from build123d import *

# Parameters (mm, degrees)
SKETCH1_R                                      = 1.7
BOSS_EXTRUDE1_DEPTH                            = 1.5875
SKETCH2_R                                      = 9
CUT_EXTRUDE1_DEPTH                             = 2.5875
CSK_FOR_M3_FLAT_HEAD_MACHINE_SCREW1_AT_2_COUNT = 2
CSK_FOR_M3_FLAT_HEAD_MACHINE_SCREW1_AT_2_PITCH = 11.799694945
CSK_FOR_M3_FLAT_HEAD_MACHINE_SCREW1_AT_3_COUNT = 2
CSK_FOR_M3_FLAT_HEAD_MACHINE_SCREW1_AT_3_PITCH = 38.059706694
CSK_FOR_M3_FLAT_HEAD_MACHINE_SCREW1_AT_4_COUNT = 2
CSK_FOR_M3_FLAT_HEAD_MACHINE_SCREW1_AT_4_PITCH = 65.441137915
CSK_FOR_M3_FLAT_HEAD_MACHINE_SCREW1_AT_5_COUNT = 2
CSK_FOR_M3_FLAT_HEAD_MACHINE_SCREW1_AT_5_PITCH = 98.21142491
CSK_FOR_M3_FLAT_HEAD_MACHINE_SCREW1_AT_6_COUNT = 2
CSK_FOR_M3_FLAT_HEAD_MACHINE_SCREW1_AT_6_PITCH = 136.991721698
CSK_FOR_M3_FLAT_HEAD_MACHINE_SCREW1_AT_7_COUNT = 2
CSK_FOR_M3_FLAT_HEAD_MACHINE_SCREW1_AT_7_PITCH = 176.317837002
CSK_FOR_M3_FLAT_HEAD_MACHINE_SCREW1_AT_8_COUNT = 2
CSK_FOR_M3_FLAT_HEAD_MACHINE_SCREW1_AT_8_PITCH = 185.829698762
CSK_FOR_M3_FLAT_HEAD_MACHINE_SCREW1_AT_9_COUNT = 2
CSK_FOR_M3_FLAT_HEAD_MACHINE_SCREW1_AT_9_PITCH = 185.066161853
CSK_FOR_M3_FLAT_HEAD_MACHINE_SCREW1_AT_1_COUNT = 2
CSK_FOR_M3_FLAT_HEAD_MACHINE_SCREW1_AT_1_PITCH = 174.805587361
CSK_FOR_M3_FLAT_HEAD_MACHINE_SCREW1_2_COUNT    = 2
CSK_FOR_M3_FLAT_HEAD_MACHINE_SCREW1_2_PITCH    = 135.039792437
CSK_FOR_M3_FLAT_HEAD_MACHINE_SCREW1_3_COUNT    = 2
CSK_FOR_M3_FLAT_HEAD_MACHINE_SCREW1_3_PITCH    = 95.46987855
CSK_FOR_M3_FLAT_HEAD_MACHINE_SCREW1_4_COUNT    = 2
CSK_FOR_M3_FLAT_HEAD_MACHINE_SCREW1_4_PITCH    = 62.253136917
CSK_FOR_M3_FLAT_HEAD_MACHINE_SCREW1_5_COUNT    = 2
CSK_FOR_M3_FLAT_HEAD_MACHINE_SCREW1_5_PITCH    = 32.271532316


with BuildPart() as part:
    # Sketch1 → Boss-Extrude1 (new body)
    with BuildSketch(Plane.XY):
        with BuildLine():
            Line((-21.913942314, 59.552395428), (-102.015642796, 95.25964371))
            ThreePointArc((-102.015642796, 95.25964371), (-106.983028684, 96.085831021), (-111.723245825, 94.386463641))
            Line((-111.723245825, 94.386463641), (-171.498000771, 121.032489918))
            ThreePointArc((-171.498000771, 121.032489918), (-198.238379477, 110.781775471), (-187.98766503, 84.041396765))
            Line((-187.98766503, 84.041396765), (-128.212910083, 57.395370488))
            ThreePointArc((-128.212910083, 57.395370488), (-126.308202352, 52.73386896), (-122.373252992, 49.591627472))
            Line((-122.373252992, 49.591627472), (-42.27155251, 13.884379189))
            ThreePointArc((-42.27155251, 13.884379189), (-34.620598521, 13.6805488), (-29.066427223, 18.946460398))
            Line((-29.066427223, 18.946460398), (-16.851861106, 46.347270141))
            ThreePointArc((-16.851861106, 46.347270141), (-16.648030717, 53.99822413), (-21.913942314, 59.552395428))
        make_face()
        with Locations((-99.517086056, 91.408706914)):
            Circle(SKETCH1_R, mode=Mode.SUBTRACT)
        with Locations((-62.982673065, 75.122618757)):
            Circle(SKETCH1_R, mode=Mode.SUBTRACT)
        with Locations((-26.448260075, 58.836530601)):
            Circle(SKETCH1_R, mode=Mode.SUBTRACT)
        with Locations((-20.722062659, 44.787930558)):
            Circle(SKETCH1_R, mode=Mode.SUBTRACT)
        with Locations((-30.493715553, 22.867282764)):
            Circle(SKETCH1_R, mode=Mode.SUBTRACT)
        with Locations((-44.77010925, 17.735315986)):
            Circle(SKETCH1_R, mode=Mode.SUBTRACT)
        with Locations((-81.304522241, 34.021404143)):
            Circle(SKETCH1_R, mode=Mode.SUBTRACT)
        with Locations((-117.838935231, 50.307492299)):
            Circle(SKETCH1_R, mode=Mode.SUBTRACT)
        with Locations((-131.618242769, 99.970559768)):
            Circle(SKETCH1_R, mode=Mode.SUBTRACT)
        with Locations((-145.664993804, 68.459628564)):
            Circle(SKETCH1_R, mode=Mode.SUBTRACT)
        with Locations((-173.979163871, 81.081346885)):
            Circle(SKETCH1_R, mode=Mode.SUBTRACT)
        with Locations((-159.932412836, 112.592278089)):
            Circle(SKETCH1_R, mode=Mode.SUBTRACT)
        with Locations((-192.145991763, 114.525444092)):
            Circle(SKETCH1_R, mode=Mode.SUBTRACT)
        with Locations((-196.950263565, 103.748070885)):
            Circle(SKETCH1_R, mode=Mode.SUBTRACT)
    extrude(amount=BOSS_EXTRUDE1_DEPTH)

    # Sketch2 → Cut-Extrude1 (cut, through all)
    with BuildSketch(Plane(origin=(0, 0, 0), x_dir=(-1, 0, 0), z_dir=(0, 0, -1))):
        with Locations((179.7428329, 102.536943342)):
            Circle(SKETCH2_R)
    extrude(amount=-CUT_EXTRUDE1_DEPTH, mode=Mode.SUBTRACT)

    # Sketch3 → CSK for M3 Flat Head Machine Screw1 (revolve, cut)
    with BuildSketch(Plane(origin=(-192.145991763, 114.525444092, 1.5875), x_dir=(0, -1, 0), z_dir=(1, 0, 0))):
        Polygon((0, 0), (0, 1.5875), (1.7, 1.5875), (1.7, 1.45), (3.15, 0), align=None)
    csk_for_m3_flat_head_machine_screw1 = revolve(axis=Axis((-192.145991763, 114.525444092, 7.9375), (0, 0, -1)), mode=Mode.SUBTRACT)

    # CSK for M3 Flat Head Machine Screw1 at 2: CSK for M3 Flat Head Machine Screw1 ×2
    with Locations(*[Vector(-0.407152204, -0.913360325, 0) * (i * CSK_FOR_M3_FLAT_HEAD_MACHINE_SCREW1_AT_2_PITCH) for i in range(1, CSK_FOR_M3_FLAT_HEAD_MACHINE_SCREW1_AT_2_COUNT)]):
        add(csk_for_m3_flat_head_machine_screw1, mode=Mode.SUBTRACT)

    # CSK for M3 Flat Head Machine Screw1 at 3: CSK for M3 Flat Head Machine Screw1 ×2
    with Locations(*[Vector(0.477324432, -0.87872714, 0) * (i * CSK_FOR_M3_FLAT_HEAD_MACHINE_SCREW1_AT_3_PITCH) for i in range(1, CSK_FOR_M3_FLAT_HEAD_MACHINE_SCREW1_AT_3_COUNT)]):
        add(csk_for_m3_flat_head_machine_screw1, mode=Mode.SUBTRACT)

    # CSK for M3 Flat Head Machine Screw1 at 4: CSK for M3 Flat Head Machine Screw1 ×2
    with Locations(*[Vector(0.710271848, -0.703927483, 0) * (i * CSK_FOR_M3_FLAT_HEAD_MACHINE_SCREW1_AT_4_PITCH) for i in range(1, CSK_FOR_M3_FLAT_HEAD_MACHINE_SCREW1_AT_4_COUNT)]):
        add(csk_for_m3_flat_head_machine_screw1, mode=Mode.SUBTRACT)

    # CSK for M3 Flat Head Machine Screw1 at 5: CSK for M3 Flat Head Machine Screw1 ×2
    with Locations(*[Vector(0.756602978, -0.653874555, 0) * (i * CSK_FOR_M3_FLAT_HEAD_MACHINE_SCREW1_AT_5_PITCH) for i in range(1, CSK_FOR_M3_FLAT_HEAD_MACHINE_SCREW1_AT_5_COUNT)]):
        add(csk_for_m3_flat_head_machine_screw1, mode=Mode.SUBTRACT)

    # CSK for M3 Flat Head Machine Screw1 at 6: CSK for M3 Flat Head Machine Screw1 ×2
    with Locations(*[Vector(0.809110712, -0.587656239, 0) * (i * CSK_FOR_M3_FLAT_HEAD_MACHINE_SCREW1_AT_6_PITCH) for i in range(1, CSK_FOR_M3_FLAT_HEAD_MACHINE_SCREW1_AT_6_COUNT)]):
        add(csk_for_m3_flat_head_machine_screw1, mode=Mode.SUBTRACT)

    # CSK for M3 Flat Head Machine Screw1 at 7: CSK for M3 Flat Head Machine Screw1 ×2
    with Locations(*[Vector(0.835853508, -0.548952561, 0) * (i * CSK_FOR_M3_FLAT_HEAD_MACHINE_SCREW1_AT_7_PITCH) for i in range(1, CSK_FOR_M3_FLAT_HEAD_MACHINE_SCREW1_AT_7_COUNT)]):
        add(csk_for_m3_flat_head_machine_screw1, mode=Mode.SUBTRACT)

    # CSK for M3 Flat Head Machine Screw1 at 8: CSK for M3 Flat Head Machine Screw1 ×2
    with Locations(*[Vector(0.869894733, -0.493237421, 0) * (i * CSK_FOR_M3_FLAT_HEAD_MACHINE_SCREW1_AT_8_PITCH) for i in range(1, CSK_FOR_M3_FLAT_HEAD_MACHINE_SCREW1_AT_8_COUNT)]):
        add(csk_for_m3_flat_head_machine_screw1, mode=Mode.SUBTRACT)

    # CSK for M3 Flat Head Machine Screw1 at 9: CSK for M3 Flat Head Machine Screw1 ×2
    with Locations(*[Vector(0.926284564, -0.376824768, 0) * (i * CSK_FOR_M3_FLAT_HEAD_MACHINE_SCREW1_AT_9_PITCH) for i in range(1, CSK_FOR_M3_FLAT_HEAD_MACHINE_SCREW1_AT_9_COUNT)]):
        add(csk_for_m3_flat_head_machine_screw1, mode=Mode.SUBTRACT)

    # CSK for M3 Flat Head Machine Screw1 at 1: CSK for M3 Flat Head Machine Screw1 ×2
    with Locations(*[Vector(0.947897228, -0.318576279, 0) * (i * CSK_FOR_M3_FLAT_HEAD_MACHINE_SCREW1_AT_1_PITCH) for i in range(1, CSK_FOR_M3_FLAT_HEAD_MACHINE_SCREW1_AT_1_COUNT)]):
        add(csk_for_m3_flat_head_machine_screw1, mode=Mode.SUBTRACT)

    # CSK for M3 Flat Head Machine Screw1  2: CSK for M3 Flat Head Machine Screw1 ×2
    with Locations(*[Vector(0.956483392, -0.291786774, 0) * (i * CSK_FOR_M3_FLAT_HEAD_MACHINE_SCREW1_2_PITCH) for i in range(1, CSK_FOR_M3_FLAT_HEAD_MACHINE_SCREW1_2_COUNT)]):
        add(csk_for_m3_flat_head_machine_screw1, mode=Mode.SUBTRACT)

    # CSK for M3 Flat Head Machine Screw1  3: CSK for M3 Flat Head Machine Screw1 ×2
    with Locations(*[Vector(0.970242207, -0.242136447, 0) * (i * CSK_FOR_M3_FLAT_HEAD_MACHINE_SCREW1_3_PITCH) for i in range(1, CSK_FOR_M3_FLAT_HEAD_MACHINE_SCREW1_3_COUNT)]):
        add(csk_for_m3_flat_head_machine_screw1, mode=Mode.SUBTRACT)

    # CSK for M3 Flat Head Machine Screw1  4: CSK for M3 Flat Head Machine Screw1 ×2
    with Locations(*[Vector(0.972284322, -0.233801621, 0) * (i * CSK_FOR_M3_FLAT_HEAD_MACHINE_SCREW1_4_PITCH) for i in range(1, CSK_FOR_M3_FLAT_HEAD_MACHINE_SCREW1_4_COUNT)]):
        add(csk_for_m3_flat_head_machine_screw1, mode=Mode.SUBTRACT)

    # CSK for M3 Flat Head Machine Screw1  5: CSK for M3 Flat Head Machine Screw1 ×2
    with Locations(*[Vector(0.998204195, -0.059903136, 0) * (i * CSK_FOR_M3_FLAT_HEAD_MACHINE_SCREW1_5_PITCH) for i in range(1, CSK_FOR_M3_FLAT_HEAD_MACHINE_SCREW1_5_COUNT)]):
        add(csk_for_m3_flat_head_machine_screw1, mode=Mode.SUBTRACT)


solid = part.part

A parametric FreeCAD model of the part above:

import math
import FreeCAD as App
import Part
import Sketcher

V = App.Vector
Q = App.Units.Quantity


def add_polygon(sketch, points):
    """Adds a closed chain of lines whose ends are joined by coincident constraints."""
    first, n = sketch.GeometryCount, len(points)
    for a, b in zip(points, points[1:] + points[:1]):
        sketch.addGeometry(Part.LineSegment(App.Vector(*a, 0), App.Vector(*b, 0)), False)
    for i in range(n):
        sketch.addConstraint(Sketcher.Constraint("Coincident", first + i, 2, first + (i + 1) % n, 1))

doc = App.newDocument("Part")
params = doc.addObject("Spreadsheet::Sheet", "Params")
for row, (alias, value) in enumerate([
    ("sketch1_radius", "10 mm"),
    ("sketch1_diameter", "3.4 mm"),
    ("sketch1_radius2", "20.25 mm"),
    ("sketch1_length", "30 mm"),
    ("sketch1_length2", "87.7 mm"),
    ("pad1_length", "1.5875 mm"),
    ("sketch2_diameter", "18 mm"),
    ("sketch3_width", "1.7 mm"),
    ("sketch3_width2", "3.15 mm"),
    ("groove_angle", "360 deg"),
    ("linearpattern_pitch", "11.799695 mm"),
    ("linearpattern2_pitch", "38.059707 mm"),
    ("linearpattern3_pitch", "65.441138 mm"),
    ("linearpattern4_pitch", "98.211425 mm"),
    ("linearpattern5_pitch", "136.991722 mm"),
    ("linearpattern6_pitch", "176.317837 mm"),
    ("linearpattern7_pitch", "185.829699 mm"),
    ("linearpattern8_pitch", "185.066162 mm"),
    ("linearpattern9_pitch", "174.805587 mm"),
    ("linearpattern10_pitch", "135.039792 mm"),
    ("linearpattern11_pitch", "95.469879 mm"),
    ("linearpattern12_pitch", "62.253137 mm"),
    ("linearpattern13_pitch", "32.271532 mm"),
], start=1):
    params.set(f"A{row}", alias)
    params.set(f"B{row}", "=" + value)
    params.setAlias(f"B{row}", alias)

body = doc.addObject("PartDesign::Body", "Body")

# Sketch on XY plane
sketch1 = body.newObject("Sketcher::SketchObject", "Sketch")
sketch1.AttachmentSupport = (doc.getObject("XY_Plane"), [""])
sketch1.MapMode = "FlatFace"
sketch1.addGeometry([
    Part.LineSegment(V(-21.9, 59.6, 0), V(-102, 95.3, 0)),  # 0
    Part.ArcOfCircle(Part.Circle(V(-106.1, 86.1, 0), V(0, 0, 1), 10), math.radians(66), math.radians(124)),  # 1
    Part.LineSegment(V(-111.7, 94.4, 0), V(-171.5, 121, 0)),  # 2
    Part.ArcOfCircle(Part.Circle(V(-179.7, 102.5, 0), V(0, 0, 1), 20.2), math.radians(66), math.radians(246)),  # 3
    Part.LineSegment(V(-188, 84, 0), V(-128.2, 57.4, 0)),  # 4
    Part.ArcOfCircle(Part.Circle(V(-118.3, 58.7, 0), V(0, 0, 1), 10), math.radians(-172), math.radians(-114)),  # 5
    Part.LineSegment(V(-122.4, 49.6, 0), V(-42.3, 13.9, 0)),  # 6
    Part.ArcOfCircle(Part.Circle(V(-38.2, 23, 0), V(0, 0, 1), 10), math.radians(-114), math.radians(-24)),  # 7
    Part.LineSegment(V(-29.1, 18.9, 0), V(-16.9, 46.3, 0)),  # 8
    Part.ArcOfCircle(Part.Circle(V(-26, 50.4, 0), V(0, 0, 1), 10), math.radians(-24), math.radians(66)),  # 9
    Part.Circle(V(-117.8, 50.3, 0), V(0, 0, 1), 1.7),  # 10
    Part.Circle(V(-81.3, 34, 0), V(0, 0, 1), 1.7),  # 11
    Part.Circle(V(-44.8, 17.7, 0), V(0, 0, 1), 1.7),  # 12
    Part.Circle(V(-30.5, 22.9, 0), V(0, 0, 1), 1.7),  # 13
    Part.Circle(V(-20.7, 44.8, 0), V(0, 0, 1), 1.7),  # 14
    Part.Circle(V(-26.4, 58.8, 0), V(0, 0, 1), 1.7),  # 15
    Part.Circle(V(-174, 81.1, 0), V(0, 0, 1), 1.7),  # 16
    Part.Circle(V(-145.7, 68.5, 0), V(0, 0, 1), 1.7),  # 17
    Part.Circle(V(-197, 103.7, 0), V(0, 0, 1), 1.7),  # 18
    Part.Circle(V(-192.1, 114.5, 0), V(0, 0, 1), 1.7),  # 19
    Part.Circle(V(-159.9, 112.6, 0), V(0, 0, 1), 1.7),  # 20
    Part.Circle(V(-131.6, 100, 0), V(0, 0, 1), 1.7),  # 21
    Part.Circle(V(-63, 75.1, 0), V(0, 0, 1), 1.7),  # 22
    Part.Circle(V(-99.5, 91.4, 0), V(0, 0, 1), 1.7),  # 23
], False)
sketch1.addConstraint([
    Sketcher.Constraint("Tangent", 0, 2, 1, 1),
    Sketcher.Constraint("Coincident", 1, 2, 2, 1),
    Sketcher.Constraint("Tangent", 2, 2, 3, 1),
    Sketcher.Constraint("Tangent", 3, 2, 4, 1),
    Sketcher.Constraint("Coincident", 4, 2, 5, 1),
    Sketcher.Constraint("Tangent", 5, 2, 6, 1),
    Sketcher.Constraint("Tangent", 6, 2, 7, 1),
    Sketcher.Constraint("Tangent", 7, 2, 8, 1),
    Sketcher.Constraint("Tangent", 8, 2, 9, 1),
    Sketcher.Constraint("Tangent", 9, 2, 0, 1),
    Sketcher.Constraint("Equal", 1, 5),
    Sketcher.Constraint("Equal", 5, 7),
    Sketcher.Constraint("Equal", 7, 9),
    Sketcher.Constraint("Equal", 10, 11),
    Sketcher.Constraint("Equal", 11, 12),
    Sketcher.Constraint("Equal", 12, 13),
    Sketcher.Constraint("Equal", 13, 14),
    Sketcher.Constraint("Equal", 14, 15),
    Sketcher.Constraint("Equal", 15, 16),
    Sketcher.Constraint("Equal", 16, 17),
    Sketcher.Constraint("Equal", 17, 18),
    Sketcher.Constraint("Equal", 18, 19),
    Sketcher.Constraint("Equal", 19, 20),
    Sketcher.Constraint("Equal", 20, 21),
    Sketcher.Constraint("Equal", 21, 22),
    Sketcher.Constraint("Equal", 22, 23),
    Sketcher.Constraint("Parallel", 0, 2),
    Sketcher.Constraint("Parallel", 2, 4),
    Sketcher.Constraint("Parallel", 4, 6),
    Sketcher.Constraint("Perpendicular", 6, 8),
    Sketcher.Constraint("Equal", 2, 4),
    Sketcher.Constraint("Equal", 0, 6),
    Sketcher.Constraint("Radius", 1, Q("10 mm")),
    Sketcher.Constraint("Diameter", 10, Q("3.4 mm")),
    Sketcher.Constraint("Radius", 3, Q("20.25 mm")),
    Sketcher.Constraint("Distance", 8, Q("30 mm")),
    Sketcher.Constraint("Distance", 0, Q("87.7 mm")),
    Sketcher.Constraint("DistanceX", 2, 2, -1, 1, Q("171.498001 mm")),
    Sketcher.Constraint("DistanceX", 16, 3, 1, 3, Q("67.891999 mm")),
    Sketcher.Constraint("DistanceY", 5, 2, 17, 3, Q("18.868001 mm")),
    Sketcher.Constraint("DistanceX", 3, 3, 5, 3, Q("61.441102 mm")),
    Sketcher.Constraint("DistanceX", 5, 3, 7, 3, Q("80.1017 mm")),
    Sketcher.Constraint("DistanceY", 10, 3, 9, 3, Q("0.1113 mm")),
    Sketcher.Constraint("DistanceY", 13, 3, 7, 3, Q("0.1507 mm")),
    Sketcher.Constraint("DistanceX", 9, 3, 14, 3, Q("5.263402 mm")),
    Sketcher.Constraint("DistanceY", 14, 3, 15, 3, Q("14.0486 mm")),
    Sketcher.Constraint("DistanceX", 18, 3, 16, 3, Q("22.9711 mm")),
    Sketcher.Constraint("DistanceY", 3, 3, 19, 3, Q("11.988501 mm")),
    Sketcher.Constraint("DistanceX", 21, 3, 0, 2, Q("29.6026 mm")),
    Sketcher.Constraint("DistanceX", 15, 3, 8, 2, Q("9.596399 mm")),
    Sketcher.Constraint("DistanceY", -1, 1, 1, 3, Q("86.12604 mm")),
    Sketcher.Constraint("DistanceX", 12, 3, -1, 1, Q("44.770109 mm")),
    Sketcher.Constraint("DistanceY", -1, 1, 14, 3, Q("44.787931 mm")),
    Sketcher.Constraint("DistanceY", -1, 1, 18, 3, Q("103.748071 mm")),
    Sketcher.Constraint("DistanceX", 19, 3, -1, 1, Q("192.145992 mm")),
    Sketcher.Constraint("DistanceY", -1, 1, 20, 3, Q("112.592278 mm")),
    Sketcher.Constraint("DistanceY", -1, 1, 21, 3, Q("99.97056 mm")),
    Sketcher.Constraint("DistanceY", -1, 1, 22, 3, Q("75.122619 mm")),
    Sketcher.Constraint("DistanceX", 10, 3, 1, 3, Q("11.75177 mm")),
    Sketcher.Constraint("DistanceY", 11, 3, 10, 3, Q("16.286088 mm")),
    Sketcher.Constraint("DistanceX", 11, 3, 7, 3, Q("43.104492 mm")),
    Sketcher.Constraint("DistanceY", 12, 3, 11, 3, Q("16.286088 mm")),
    Sketcher.Constraint("DistanceX", 13, 3, 9, 3, Q("4.508251 mm")),
    Sketcher.Constraint("DistanceX", 16, 3, 17, 3, Q("28.31417 mm")),
    Sketcher.Constraint("DistanceY", 17, 3, 16, 3, Q("12.621718 mm")),
    Sketcher.Constraint("DistanceX", 3, 3, 20, 3, Q("19.81042 mm")),
    Sketcher.Constraint("DistanceX", 22, 3, 9, 3, Q("36.997209 mm")),
    Sketcher.Constraint("DistanceX", 1, 3, 23, 3, Q("6.570079 mm")),
    Sketcher.Constraint("DistanceY", 22, 3, 23, 3, Q("16.286088 mm")),
])
sketch1.setExpression("Constraints[32]", "Params.sketch1_radius")
sketch1.setExpression("Constraints[33]", "Params.sketch1_diameter")
sketch1.setExpression("Constraints[34]", "Params.sketch1_radius2")
sketch1.setExpression("Constraints[35]", "Params.sketch1_length")
sketch1.setExpression("Constraints[36]", "Params.sketch1_length2")
pad1 = body.newObject("PartDesign::Pad", "Pad")
pad1.Profile = sketch1
pad1.setExpression("Length", "Params.pad1_length")

# Sketch on XY plane
sketch2 = body.newObject("Sketcher::SketchObject", "Sketch001")
sketch2.AttachmentSupport = (doc.getObject("XY_Plane"), [""])
sketch2.MapMode = "FlatFace"
sketch2.addGeometry(Part.Circle(V(-180, 103, 0), V(0, 0, 1), 9), False)
sketch2.addConstraint([
    Sketcher.Constraint("Diameter", 0, Q("18 mm")),
    Sketcher.Constraint("DistanceX", 0, 3, -1, 1, Q("179.742833 mm")),
    Sketcher.Constraint("DistanceY", -1, 1, 0, 3, Q("102.536943 mm")),
])
sketch2.setExpression("Constraints[0]", "Params.sketch2_diameter")
pocket1 = body.newObject("PartDesign::Pocket", "Pocket")
pocket1.Profile = sketch2
pocket1.Type = "ThroughAll"
pocket1.Reversed = True

# Sketch on YZ plane
sketch3 = body.newObject("Sketcher::SketchObject", "Sketch002")
sketch3.AttachmentSupport = (doc.getObject("YZ_Plane"), [""])
sketch3.MapMode = "FlatFace"
sketch3.AttachmentOffset = App.Placement(V(0, 0, -192.145992), App.Rotation())
add_polygon(sketch3, [(114.53, 0), (114.53, 1.59), (111.38, 1.59), (112.83, 0.14), (112.83, 0)])  # lines 0-4
sketch3.addGeometry(Part.LineSegment(V(114.53, 1.59, 0), V(114.53, 0, 0)), True)  # axis
sketch3.addConstraint([
    Sketcher.Constraint("Vertical", 0),
    Sketcher.Constraint("Horizontal", 1),
    Sketcher.Constraint("Vertical", 3),
    Sketcher.Constraint("Horizontal", 4),
    Sketcher.Constraint("Vertical", 5),
    Sketcher.Constraint("Coincident", 5, 1, 0, 2),
    Sketcher.Constraint("PointOnObject", 3, 2, -1),
    Sketcher.Constraint("PointOnObject", 5, 2, -1),
    Sketcher.Constraint("Angle", 2, Q("-45 deg")),
    Sketcher.Constraint("DistanceX", 4, 1, 4, 2, Q("1.7 mm")),
    Sketcher.Constraint("DistanceX", 1, 2, 1, 1, Q("3.15 mm")),
    Sketcher.Constraint("DistanceY", 0, 1, 0, 2, Q("1.5875 mm")),
    Sketcher.Constraint("DistanceX", -1, 1, 0, 2, Q("114.525444 mm")),
])
sketch3.setExpression("Constraints[14]", "Params.sketch3_width")
sketch3.setExpression("Constraints[15]", "Params.sketch3_width2")
groove = body.newObject("PartDesign::Groove", "Groove")
groove.Profile = sketch3
groove.ReferenceAxis = (sketch3, ["Axis0"])
groove.setExpression("Angle", "Params.groove_angle")
doc.recompute()

datumline = body.newObject("PartDesign::Line", "DatumLine")
datumline.Placement = App.Placement(V(0, 0, 0), App.Rotation(V(0, 0, 1), V(-0.407152204, -0.913360325, 0)))
linearpattern = body.newObject("PartDesign::LinearPattern", "LinearPattern")
linearpattern.Originals = [groove]
linearpattern.Direction = (datumline, [""])
linearpattern.Mode = "offset"
linearpattern.setExpression("Offset", "Params.linearpattern_pitch")
linearpattern.Occurrences = 2
body.Tip = linearpattern
doc.recompute()

datumline2 = body.newObject("PartDesign::Line", "DatumLine001")
datumline2.Placement = App.Placement(V(0, 0, 0), App.Rotation(V(0, 0, 1), V(0.477324432, -0.87872714, 0)))
linearpattern2 = body.newObject("PartDesign::LinearPattern", "LinearPattern001")
linearpattern2.Originals = [groove]
linearpattern2.Direction = (datumline2, [""])
linearpattern2.Mode = "offset"
linearpattern2.setExpression("Offset", "Params.linearpattern2_pitch")
linearpattern2.Occurrences = 2
body.Tip = linearpattern2
doc.recompute()

datumline3 = body.newObject("PartDesign::Line", "DatumLine002")
datumline3.Placement = App.Placement(V(0, 0, 0), App.Rotation(V(0, 0, 1), V(0.710271848, -0.703927483, 0)))
linearpattern3 = body.newObject("PartDesign::LinearPattern", "LinearPattern002")
linearpattern3.Originals = [groove]
linearpattern3.Direction = (datumline3, [""])
linearpattern3.Mode = "offset"
linearpattern3.setExpression("Offset", "Params.linearpattern3_pitch")
linearpattern3.Occurrences = 2
body.Tip = linearpattern3
doc.recompute()

datumline4 = body.newObject("PartDesign::Line", "DatumLine003")
datumline4.Placement = App.Placement(V(0, 0, 0), App.Rotation(V(0, 0, 1), V(0.756602978, -0.653874555, 0)))
linearpattern4 = body.newObject("PartDesign::LinearPattern", "LinearPattern003")
linearpattern4.Originals = [groove]
linearpattern4.Direction = (datumline4, [""])
linearpattern4.Mode = "offset"
linearpattern4.setExpression("Offset", "Params.linearpattern4_pitch")
linearpattern4.Occurrences = 2
body.Tip = linearpattern4
doc.recompute()

datumline5 = body.newObject("PartDesign::Line", "DatumLine004")
datumline5.Placement = App.Placement(V(0, 0, 0), App.Rotation(V(0, 0, 1), V(0.809110712, -0.587656239, 0)))
linearpattern5 = body.newObject("PartDesign::LinearPattern", "LinearPattern004")
linearpattern5.Originals = [groove]
linearpattern5.Direction = (datumline5, [""])
linearpattern5.Mode = "offset"
linearpattern5.setExpression("Offset", "Params.linearpattern5_pitch")
linearpattern5.Occurrences = 2
body.Tip = linearpattern5
doc.recompute()

datumline6 = body.newObject("PartDesign::Line", "DatumLine005")
datumline6.Placement = App.Placement(V(0, 0, 0), App.Rotation(V(0, 0, 1), V(0.835853508, -0.548952561, 0)))
linearpattern6 = body.newObject("PartDesign::LinearPattern", "LinearPattern005")
linearpattern6.Originals = [groove]
linearpattern6.Direction = (datumline6, [""])
linearpattern6.Mode = "offset"
linearpattern6.setExpression("Offset", "Params.linearpattern6_pitch")
linearpattern6.Occurrences = 2
body.Tip = linearpattern6
doc.recompute()

datumline7 = body.newObject("PartDesign::Line", "DatumLine006")
datumline7.Placement = App.Placement(V(0, 0, 0), App.Rotation(V(0, 0, 1), V(0.869894733, -0.493237421, 0)))
linearpattern7 = body.newObject("PartDesign::LinearPattern", "LinearPattern006")
linearpattern7.Originals = [groove]
linearpattern7.Direction = (datumline7, [""])
linearpattern7.Mode = "offset"
linearpattern7.setExpression("Offset", "Params.linearpattern7_pitch")
linearpattern7.Occurrences = 2
body.Tip = linearpattern7
doc.recompute()

datumline8 = body.newObject("PartDesign::Line", "DatumLine007")
datumline8.Placement = App.Placement(V(0, 0, 0), App.Rotation(V(0, 0, 1), V(0.926284564, -0.376824768, 0)))
linearpattern8 = body.newObject("PartDesign::LinearPattern", "LinearPattern007")
linearpattern8.Originals = [groove]
linearpattern8.Direction = (datumline8, [""])
linearpattern8.Mode = "offset"
linearpattern8.setExpression("Offset", "Params.linearpattern8_pitch")
linearpattern8.Occurrences = 2
body.Tip = linearpattern8
doc.recompute()

datumline9 = body.newObject("PartDesign::Line", "DatumLine008")
datumline9.Placement = App.Placement(V(0, 0, 0), App.Rotation(V(0, 0, 1), V(0.947897228, -0.318576279, 0)))
linearpattern9 = body.newObject("PartDesign::LinearPattern", "LinearPattern008")
linearpattern9.Originals = [groove]
linearpattern9.Direction = (datumline9, [""])
linearpattern9.Mode = "offset"
linearpattern9.setExpression("Offset", "Params.linearpattern9_pitch")
linearpattern9.Occurrences = 2
body.Tip = linearpattern9
doc.recompute()

datumline10 = body.newObject("PartDesign::Line", "DatumLine009")
datumline10.Placement = App.Placement(V(0, 0, 0), App.Rotation(V(0, 0, 1), V(0.956483392, -0.291786774, 0)))
linearpattern10 = body.newObject("PartDesign::LinearPattern", "LinearPattern009")
linearpattern10.Originals = [groove]
linearpattern10.Direction = (datumline10, [""])
linearpattern10.Mode = "offset"
linearpattern10.setExpression("Offset", "Params.linearpattern10_pitch")
linearpattern10.Occurrences = 2
body.Tip = linearpattern10
doc.recompute()

datumline11 = body.newObject("PartDesign::Line", "DatumLine010")
datumline11.Placement = App.Placement(V(0, 0, 0), App.Rotation(V(0, 0, 1), V(0.970242207, -0.242136447, 0)))
linearpattern11 = body.newObject("PartDesign::LinearPattern", "LinearPattern010")
linearpattern11.Originals = [groove]
linearpattern11.Direction = (datumline11, [""])
linearpattern11.Mode = "offset"
linearpattern11.setExpression("Offset", "Params.linearpattern11_pitch")
linearpattern11.Occurrences = 2
body.Tip = linearpattern11
doc.recompute()

datumline12 = body.newObject("PartDesign::Line", "DatumLine011")
datumline12.Placement = App.Placement(V(0, 0, 0), App.Rotation(V(0, 0, 1), V(0.972284322, -0.233801621, 0)))
linearpattern12 = body.newObject("PartDesign::LinearPattern", "LinearPattern011")
linearpattern12.Originals = [groove]
linearpattern12.Direction = (datumline12, [""])
linearpattern12.Mode = "offset"
linearpattern12.setExpression("Offset", "Params.linearpattern12_pitch")
linearpattern12.Occurrences = 2
body.Tip = linearpattern12
doc.recompute()

datumline13 = body.newObject("PartDesign::Line", "DatumLine012")
datumline13.Placement = App.Placement(V(0, 0, 0), App.Rotation(V(0, 0, 1), V(0.998204195, -0.059903136, 0)))
linearpattern13 = body.newObject("PartDesign::LinearPattern", "LinearPattern012")
linearpattern13.Originals = [groove]
linearpattern13.Direction = (datumline13, [""])
linearpattern13.Mode = "offset"
linearpattern13.setExpression("Offset", "Params.linearpattern13_pitch")
linearpattern13.Occurrences = 2
body.Tip = linearpattern13

doc.recompute()
